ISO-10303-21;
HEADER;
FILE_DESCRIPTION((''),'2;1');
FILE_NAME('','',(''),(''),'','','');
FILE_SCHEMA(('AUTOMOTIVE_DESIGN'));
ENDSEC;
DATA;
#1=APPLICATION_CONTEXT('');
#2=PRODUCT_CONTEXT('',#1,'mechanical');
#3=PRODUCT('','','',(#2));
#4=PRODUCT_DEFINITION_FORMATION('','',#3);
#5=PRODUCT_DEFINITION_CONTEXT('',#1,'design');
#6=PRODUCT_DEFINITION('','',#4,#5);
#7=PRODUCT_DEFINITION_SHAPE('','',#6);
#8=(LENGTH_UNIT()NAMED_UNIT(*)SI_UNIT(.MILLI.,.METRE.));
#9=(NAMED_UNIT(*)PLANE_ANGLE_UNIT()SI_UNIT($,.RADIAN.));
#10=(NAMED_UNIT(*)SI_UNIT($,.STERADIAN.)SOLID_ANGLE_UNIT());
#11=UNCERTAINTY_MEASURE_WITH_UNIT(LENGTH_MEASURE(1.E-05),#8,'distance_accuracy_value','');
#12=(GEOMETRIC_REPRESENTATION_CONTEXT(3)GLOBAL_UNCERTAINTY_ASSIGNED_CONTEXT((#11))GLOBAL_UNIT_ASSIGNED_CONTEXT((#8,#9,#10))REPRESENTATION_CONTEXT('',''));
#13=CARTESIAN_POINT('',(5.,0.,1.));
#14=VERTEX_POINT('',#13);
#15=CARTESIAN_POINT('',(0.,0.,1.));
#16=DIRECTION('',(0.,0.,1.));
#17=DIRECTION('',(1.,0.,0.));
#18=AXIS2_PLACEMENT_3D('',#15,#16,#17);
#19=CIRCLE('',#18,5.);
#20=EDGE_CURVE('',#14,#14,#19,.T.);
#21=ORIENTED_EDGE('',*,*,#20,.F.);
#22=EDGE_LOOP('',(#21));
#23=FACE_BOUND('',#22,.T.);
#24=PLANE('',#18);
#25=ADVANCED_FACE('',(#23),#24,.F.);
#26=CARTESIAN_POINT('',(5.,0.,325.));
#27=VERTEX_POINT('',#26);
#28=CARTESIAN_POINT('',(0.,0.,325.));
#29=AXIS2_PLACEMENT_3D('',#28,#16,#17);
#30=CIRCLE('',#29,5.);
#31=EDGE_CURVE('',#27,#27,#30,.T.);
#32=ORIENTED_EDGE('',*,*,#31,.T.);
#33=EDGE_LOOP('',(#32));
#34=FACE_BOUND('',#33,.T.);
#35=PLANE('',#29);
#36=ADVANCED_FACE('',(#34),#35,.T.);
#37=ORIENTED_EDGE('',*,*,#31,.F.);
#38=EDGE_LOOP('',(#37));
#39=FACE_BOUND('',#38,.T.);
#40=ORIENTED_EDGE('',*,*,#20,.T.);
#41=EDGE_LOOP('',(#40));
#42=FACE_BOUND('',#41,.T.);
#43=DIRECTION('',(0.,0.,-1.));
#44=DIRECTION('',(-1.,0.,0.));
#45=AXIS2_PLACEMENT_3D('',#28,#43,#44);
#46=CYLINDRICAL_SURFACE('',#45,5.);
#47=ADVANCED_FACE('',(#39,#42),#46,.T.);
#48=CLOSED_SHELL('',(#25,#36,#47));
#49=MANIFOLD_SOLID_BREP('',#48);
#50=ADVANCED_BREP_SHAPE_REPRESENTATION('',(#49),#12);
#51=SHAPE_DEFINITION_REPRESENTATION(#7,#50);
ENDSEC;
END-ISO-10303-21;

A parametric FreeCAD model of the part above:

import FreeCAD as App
import Part
import Sketcher

doc = App.newDocument("Part")
body = doc.addObject("PartDesign::Body", "Body")

# Sketch on XY plane
sketch1 = body.newObject("Sketcher::SketchObject", "Sketch")
sketch1.AttachmentSupport = (doc.getObject("XY_Plane"), [""])
sketch1.MapMode = "FlatFace"
sketch1.AttachmentOffset = App.Placement(App.Vector(0, 0, 1), App.Rotation())
sketch1.addGeometry(Part.Circle(App.Vector(0, 0, 0), App.Vector(0, 0, 1), 5), False)
sketch1.addConstraint([
    Sketcher.Constraint("Coincident", 0, 3, -1, 1),
    Sketcher.Constraint("Diameter", 0, 10.0),
])
pad1 = body.newObject("PartDesign::Pad", "Pad")
pad1.Profile = sketch1
pad1.Length = 324

doc.recompute()
